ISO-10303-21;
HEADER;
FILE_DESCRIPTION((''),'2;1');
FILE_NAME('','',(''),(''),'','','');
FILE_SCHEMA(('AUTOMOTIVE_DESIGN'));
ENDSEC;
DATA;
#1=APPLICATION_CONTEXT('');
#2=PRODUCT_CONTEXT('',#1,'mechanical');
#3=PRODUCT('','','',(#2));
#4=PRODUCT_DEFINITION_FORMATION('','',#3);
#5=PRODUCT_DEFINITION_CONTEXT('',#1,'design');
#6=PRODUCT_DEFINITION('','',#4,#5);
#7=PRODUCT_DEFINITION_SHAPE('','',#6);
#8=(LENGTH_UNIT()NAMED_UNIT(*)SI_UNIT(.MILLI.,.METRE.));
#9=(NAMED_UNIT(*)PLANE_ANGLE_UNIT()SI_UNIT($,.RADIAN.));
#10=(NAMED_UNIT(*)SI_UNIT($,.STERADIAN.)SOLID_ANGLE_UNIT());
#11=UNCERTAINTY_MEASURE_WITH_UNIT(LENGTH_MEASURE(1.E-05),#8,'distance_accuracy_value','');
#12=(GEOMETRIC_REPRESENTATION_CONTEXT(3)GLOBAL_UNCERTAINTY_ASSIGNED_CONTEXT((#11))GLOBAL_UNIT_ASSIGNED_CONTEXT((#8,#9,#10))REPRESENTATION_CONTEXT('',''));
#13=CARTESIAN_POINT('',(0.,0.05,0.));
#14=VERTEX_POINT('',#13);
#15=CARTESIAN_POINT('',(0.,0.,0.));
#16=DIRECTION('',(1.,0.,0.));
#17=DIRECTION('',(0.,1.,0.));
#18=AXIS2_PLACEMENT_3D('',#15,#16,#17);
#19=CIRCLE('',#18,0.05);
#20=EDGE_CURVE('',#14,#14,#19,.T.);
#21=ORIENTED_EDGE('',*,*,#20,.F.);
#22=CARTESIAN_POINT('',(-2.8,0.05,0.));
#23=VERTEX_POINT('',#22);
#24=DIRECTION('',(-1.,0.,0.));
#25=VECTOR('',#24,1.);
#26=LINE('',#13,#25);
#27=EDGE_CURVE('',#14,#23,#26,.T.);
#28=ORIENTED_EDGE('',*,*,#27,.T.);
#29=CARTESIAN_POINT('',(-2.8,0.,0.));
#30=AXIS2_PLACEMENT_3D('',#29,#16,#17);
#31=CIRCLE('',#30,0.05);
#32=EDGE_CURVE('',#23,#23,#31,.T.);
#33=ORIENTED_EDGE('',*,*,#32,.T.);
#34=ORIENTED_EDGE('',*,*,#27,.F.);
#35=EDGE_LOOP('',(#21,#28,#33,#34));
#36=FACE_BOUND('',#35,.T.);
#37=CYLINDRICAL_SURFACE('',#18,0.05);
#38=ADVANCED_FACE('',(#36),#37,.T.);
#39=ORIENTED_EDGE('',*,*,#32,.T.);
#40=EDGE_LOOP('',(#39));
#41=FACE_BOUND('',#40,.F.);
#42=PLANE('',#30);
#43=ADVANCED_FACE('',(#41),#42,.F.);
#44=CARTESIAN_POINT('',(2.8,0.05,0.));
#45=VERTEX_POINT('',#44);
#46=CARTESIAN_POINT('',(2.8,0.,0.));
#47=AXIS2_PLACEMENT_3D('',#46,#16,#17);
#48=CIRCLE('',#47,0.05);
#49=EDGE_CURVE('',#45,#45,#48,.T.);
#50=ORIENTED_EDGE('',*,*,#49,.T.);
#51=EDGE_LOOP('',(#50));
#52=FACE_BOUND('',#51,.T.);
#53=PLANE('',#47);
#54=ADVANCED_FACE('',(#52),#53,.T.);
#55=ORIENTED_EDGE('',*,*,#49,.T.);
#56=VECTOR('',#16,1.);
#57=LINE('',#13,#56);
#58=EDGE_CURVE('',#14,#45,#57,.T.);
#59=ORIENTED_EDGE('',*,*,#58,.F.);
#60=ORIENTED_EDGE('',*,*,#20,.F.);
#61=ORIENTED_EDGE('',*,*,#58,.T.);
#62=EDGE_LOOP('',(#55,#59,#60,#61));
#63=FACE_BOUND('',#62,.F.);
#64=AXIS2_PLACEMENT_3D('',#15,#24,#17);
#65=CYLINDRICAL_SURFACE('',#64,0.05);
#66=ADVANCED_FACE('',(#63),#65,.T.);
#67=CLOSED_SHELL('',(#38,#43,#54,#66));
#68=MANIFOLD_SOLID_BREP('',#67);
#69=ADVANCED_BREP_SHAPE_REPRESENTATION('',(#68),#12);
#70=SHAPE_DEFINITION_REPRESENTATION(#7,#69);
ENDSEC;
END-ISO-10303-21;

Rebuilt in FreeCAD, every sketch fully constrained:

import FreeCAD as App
import Part
import Sketcher

V = App.Vector

doc = App.newDocument("Part")
body = doc.addObject("PartDesign::Body", "Body")

sketch1 = body.newObject("Sketcher::SketchObject", "Sketch")
sketch1.AttachmentSupport = (doc.getObject("YZ_Plane"), [""])
sketch1.MapMode = "FlatFace"
sketch1.addGeometry(Part.Circle(V(0, 0, 0), V(0, 0, 1), 0.05), False)
sketch1.addConstraint([
    Sketcher.Constraint("Coincident", 0, 3, -1, 1),
    Sketcher.Constraint("Diameter", 0, 0.1),
])
pad1 = body.newObject("PartDesign::Pad", "Pad")
pad1.Profile = sketch1
pad1.Length = 5.6
pad1.Midplane = True

doc.recompute()
